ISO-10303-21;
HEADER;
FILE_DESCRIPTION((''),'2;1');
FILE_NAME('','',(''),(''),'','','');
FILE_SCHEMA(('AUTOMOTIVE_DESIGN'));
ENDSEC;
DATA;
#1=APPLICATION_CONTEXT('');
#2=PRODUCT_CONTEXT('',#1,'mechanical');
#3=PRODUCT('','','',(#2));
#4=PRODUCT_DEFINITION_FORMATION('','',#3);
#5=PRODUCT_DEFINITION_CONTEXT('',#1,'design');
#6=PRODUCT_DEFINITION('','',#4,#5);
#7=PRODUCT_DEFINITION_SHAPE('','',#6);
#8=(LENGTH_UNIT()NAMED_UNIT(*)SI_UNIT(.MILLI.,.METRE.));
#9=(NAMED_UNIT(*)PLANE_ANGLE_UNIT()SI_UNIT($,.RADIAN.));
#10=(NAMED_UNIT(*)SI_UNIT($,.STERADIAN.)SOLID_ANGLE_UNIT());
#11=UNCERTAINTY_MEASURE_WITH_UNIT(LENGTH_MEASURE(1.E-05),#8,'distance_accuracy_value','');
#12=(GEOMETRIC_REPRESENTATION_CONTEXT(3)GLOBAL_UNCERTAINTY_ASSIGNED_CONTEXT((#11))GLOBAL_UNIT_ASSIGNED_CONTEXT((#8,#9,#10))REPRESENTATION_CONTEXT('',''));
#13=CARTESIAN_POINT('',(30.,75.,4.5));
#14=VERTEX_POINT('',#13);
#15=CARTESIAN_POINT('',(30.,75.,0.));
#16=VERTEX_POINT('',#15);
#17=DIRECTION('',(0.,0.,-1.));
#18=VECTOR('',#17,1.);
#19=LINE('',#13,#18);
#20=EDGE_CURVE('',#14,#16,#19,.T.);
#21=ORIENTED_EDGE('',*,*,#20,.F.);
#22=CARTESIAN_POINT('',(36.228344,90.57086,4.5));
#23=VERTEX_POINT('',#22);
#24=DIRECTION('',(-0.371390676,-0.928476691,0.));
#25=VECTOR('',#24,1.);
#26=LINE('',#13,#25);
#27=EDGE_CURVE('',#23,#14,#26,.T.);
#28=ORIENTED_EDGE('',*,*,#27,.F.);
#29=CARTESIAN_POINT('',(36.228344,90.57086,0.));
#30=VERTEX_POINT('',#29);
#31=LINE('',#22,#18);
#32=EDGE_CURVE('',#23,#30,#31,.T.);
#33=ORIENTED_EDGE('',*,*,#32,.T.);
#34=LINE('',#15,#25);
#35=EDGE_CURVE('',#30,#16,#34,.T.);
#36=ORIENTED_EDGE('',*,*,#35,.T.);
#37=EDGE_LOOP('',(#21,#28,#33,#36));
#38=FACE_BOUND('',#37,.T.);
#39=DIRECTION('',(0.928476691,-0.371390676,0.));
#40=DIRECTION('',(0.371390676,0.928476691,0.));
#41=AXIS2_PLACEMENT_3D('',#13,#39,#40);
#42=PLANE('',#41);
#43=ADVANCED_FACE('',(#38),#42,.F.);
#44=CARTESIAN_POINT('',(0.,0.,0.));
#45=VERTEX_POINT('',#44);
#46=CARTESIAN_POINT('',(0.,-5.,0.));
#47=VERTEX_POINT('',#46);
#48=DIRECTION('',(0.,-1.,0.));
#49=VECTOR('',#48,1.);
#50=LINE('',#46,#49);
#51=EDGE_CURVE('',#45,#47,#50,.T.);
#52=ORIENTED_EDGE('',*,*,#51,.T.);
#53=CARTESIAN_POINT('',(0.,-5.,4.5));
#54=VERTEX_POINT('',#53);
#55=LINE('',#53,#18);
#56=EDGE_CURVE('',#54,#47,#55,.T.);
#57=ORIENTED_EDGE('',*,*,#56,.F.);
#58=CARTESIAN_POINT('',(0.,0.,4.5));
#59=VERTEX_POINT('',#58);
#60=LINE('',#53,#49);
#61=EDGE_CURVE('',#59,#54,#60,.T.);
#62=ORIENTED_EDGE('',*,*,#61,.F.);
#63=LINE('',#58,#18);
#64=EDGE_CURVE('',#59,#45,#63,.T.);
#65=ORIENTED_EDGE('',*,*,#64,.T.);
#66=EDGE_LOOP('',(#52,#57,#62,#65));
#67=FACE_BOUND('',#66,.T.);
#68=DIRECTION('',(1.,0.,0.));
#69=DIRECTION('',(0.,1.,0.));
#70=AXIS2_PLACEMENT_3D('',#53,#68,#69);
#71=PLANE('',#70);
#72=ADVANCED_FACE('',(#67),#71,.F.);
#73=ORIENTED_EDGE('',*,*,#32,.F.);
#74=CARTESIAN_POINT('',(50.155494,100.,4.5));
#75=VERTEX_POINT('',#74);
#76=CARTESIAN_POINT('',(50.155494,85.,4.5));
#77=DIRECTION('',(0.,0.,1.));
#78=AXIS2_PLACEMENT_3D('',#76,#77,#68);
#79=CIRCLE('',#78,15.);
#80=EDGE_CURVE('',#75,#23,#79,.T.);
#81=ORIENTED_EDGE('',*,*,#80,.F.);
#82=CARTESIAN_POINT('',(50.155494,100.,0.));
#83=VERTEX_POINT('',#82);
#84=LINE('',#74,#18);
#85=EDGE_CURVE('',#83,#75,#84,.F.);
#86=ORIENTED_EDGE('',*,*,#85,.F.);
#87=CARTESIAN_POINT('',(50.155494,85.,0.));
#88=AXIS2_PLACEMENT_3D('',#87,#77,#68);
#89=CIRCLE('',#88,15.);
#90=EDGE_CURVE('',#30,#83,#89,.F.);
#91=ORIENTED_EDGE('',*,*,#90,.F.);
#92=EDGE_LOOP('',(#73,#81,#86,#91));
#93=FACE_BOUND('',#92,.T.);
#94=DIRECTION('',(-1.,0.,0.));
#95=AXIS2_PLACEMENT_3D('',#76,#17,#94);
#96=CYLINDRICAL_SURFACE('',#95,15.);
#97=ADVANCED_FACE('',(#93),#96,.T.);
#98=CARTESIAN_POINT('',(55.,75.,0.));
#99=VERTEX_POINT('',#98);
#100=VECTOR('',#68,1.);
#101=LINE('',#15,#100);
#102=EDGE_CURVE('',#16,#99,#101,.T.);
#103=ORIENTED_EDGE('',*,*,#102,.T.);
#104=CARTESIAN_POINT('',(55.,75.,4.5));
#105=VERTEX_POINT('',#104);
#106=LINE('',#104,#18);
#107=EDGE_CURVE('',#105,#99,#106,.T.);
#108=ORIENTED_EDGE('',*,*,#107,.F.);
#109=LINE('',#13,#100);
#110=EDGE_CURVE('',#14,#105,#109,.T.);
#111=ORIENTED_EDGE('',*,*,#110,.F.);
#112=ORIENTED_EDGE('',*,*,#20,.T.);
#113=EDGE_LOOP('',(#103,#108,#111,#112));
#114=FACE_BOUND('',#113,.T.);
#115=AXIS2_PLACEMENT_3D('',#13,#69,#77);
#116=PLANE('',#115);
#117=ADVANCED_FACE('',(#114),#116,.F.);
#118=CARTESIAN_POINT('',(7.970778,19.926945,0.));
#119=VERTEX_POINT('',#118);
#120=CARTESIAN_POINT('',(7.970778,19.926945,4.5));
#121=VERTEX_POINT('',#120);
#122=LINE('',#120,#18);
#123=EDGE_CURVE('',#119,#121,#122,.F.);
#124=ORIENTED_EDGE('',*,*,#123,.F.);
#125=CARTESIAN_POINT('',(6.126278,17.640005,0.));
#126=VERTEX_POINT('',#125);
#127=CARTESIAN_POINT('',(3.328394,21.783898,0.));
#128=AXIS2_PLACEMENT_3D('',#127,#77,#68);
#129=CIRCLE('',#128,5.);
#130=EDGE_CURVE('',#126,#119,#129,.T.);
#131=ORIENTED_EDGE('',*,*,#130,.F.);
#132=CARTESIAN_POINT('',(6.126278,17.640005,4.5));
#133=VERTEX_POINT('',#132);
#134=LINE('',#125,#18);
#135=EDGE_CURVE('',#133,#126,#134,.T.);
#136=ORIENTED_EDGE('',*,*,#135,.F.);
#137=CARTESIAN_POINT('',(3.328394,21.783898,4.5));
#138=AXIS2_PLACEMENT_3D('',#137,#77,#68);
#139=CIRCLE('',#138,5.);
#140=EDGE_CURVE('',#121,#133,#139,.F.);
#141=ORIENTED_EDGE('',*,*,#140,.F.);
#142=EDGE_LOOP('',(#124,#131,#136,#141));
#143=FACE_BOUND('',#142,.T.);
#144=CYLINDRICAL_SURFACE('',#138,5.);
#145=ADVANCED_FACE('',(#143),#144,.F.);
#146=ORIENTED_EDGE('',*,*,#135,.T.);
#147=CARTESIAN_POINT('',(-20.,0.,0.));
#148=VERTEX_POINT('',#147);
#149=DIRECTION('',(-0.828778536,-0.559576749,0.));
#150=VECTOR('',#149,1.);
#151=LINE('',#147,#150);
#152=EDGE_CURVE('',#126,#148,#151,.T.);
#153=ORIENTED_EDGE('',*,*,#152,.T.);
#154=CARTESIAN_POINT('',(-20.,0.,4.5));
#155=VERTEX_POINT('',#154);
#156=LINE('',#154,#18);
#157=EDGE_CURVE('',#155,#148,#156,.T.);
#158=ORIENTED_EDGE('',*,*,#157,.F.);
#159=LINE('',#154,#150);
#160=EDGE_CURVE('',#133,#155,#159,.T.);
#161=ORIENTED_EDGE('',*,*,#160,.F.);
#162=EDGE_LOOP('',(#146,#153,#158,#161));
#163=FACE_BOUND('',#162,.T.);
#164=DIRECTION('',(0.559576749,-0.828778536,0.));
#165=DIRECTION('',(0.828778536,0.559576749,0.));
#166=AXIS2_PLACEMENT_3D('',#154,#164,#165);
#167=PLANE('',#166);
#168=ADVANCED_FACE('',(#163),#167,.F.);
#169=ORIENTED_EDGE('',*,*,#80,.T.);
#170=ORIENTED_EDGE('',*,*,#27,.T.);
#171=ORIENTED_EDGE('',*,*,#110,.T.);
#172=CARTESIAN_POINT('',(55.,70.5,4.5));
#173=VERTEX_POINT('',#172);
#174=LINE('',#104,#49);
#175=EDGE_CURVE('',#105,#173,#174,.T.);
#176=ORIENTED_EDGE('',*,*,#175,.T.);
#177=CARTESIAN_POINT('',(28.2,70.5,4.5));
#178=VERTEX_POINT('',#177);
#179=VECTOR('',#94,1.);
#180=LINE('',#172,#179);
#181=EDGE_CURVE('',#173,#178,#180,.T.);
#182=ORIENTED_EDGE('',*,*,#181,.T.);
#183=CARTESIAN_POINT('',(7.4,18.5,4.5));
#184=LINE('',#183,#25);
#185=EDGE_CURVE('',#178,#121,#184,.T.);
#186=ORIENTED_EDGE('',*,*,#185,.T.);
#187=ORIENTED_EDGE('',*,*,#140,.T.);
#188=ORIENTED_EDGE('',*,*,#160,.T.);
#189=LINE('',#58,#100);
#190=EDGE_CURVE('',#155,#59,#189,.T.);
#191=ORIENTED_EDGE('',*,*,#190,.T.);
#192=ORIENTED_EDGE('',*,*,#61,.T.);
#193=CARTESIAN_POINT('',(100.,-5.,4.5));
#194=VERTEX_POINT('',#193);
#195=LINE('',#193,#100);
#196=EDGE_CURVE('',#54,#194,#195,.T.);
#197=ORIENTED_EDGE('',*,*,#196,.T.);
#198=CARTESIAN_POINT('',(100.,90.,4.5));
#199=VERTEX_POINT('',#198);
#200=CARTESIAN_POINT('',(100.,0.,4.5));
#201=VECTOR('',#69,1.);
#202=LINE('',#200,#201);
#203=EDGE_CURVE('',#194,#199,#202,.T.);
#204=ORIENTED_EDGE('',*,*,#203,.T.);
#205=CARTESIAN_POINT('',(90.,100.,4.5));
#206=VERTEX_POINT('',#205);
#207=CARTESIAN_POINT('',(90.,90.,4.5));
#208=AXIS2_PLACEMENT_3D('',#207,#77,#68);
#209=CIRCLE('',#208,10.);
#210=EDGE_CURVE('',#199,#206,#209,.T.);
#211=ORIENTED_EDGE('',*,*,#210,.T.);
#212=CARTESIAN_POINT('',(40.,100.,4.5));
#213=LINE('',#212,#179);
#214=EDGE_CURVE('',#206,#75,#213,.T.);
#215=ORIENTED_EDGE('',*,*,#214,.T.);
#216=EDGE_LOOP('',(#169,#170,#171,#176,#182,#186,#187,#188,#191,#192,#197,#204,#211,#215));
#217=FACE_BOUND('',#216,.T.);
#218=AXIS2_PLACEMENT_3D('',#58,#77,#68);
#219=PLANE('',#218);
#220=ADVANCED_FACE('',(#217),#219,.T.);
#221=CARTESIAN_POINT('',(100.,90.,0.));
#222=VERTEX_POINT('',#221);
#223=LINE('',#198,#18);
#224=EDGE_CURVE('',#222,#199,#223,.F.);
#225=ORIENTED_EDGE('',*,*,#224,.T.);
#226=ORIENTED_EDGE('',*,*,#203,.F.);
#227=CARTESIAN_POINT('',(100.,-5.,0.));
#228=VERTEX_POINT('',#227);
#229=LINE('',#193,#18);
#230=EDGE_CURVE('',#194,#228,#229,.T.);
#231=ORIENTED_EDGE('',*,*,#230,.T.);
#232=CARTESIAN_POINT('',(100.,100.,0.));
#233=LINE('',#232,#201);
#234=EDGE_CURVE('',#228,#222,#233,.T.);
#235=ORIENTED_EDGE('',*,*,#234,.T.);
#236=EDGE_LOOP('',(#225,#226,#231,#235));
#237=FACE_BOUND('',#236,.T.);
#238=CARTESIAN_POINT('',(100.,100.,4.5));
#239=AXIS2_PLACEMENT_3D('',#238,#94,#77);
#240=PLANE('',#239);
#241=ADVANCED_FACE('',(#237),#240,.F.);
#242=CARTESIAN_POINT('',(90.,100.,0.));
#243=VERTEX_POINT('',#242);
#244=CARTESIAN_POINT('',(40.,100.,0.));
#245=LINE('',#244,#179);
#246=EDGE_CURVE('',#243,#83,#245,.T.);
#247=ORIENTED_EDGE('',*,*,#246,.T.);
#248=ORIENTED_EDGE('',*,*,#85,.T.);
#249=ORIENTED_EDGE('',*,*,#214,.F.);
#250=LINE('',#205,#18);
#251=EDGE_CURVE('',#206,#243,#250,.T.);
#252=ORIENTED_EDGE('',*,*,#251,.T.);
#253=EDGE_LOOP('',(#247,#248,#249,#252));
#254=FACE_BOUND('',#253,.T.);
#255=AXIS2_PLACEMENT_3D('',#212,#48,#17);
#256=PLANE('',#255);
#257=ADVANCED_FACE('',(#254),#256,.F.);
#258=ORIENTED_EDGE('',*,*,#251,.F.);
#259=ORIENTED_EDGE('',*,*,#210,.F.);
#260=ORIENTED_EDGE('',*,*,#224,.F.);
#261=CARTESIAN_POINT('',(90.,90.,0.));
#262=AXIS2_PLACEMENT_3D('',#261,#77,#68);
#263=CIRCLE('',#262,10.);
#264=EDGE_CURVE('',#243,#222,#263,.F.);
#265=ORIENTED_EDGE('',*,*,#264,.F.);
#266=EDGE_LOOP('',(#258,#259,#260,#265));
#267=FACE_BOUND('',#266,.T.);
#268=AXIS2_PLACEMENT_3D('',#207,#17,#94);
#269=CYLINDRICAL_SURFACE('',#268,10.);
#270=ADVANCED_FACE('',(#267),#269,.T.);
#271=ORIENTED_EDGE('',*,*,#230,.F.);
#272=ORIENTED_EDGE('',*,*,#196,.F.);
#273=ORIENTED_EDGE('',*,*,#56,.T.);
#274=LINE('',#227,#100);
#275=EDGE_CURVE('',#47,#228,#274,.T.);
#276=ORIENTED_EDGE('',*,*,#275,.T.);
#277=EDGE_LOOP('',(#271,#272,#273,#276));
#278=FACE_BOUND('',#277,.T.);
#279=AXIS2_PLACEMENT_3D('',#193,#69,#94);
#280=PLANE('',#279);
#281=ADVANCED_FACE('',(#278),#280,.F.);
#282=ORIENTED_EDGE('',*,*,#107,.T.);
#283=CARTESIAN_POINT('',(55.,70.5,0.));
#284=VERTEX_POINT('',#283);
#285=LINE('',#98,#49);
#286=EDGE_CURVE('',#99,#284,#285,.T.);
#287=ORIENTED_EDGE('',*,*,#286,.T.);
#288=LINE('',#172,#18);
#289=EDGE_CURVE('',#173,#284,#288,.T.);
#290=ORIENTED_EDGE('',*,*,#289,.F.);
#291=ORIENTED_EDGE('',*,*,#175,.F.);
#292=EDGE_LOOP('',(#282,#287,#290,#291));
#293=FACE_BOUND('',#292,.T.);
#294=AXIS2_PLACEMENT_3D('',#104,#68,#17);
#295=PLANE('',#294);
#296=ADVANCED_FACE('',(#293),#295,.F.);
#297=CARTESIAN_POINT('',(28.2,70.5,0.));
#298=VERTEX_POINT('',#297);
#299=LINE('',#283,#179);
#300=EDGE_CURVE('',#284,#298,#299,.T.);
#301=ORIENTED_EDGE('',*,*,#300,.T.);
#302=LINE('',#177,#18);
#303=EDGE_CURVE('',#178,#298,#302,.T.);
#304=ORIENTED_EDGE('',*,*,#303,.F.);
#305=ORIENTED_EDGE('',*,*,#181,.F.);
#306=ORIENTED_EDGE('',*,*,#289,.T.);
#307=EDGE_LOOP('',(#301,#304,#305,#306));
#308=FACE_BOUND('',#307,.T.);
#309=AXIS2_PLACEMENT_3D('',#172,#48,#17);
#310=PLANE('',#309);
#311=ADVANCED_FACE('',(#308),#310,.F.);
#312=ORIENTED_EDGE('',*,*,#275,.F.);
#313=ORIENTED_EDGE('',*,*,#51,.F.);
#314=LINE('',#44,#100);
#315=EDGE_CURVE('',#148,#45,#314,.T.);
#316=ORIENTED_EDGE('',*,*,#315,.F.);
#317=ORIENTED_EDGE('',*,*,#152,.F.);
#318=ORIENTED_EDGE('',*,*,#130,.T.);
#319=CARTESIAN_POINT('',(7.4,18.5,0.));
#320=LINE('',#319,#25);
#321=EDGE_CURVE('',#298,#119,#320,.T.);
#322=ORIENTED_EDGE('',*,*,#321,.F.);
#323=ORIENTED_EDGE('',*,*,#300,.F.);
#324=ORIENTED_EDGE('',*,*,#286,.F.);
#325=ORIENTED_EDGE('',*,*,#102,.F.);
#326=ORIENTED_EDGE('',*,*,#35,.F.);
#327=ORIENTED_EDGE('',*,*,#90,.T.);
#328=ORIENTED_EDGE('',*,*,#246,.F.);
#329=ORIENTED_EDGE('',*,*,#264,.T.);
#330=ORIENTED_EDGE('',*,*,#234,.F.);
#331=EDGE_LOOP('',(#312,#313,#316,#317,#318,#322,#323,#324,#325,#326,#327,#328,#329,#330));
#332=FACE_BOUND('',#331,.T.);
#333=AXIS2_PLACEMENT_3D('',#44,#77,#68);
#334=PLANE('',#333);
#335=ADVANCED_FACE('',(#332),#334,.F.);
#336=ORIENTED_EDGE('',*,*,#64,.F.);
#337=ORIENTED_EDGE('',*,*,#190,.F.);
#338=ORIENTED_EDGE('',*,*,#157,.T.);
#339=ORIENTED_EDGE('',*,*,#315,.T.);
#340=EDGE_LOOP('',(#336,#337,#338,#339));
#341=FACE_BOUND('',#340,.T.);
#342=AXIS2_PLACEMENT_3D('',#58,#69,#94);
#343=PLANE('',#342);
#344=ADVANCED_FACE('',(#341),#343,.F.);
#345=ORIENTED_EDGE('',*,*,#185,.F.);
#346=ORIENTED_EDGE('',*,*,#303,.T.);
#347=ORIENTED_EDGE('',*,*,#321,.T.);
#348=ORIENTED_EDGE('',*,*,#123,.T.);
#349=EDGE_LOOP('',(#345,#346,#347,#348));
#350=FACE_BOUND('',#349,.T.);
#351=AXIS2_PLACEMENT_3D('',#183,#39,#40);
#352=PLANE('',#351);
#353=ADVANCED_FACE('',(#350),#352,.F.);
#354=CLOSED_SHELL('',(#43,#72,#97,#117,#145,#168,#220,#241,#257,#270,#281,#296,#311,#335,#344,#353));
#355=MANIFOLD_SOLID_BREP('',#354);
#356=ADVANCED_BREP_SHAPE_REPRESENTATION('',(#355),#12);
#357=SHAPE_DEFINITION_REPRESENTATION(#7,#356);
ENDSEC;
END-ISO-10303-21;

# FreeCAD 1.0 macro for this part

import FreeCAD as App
import Part
import Sketcher
from FreeCAD import Vector
Q = App.Units.Quantity


def edges_at(feature, points):
    """Names of the edges that pass closest to the given points."""
    edges = feature.Shape.Edges
    near = lambda p: min(range(len(edges)), key=lambda i: edges[i].distToShape(Part.Vertex(*p))[0])
    return sorted({f"Edge{near(p) + 1}" for p in points})


def add_polygon(sketch, points):
    """Adds a closed chain of lines whose ends are joined by coincident constraints."""
    first, n = sketch.GeometryCount, len(points)
    for a, b in zip(points, points[1:] + points[:1]):
        sketch.addGeometry(Part.LineSegment(App.Vector(*a, 0), App.Vector(*b, 0)), False)
    for i in range(n):
        sketch.addConstraint(Sketcher.Constraint("Coincident", first + i, 2, first + (i + 1) % n, 1))

doc = App.newDocument("Part")
params = doc.addObject("Spreadsheet::Sheet", "Params")
for row, (alias, value) in enumerate([
    ("sketch1_width", "20 mm"),
    ("sketch1_width2", "100 mm"),
    ("sketch1_width3", "60 mm"),
    ("sketch1_width4", "25 mm"),
    ("sketch1_height", "5 mm"),
    ("pad1_length", "4.5 mm"),
    ("fillet_radius", "5 mm"),
    ("fillet2_radius", "10 mm"),
    ("fillet3_radius", "15 mm"),
], start=1):
    params.set(f"A{row}", alias)
    params.set(f"B{row}", "=" + value)
    params.setAlias(f"B{row}", alias)

body = doc.addObject("PartDesign::Body", "Body")

sketch1 = doc.addObject("Sketcher::SketchObject", "Sketch")
body.addObject(sketch1)
sketch1.AttachmentSupport = (doc.XY_Plane, [""])
sketch1.MapMode = "FlatFace"
add_polygon(sketch1, [(28.2, 70.5), (7.4, 18.5), (-20, 0), (0, 0), (0, -5), (100, -5), (100, 100), (40, 100), (30, 75), (55, 75), (55, 70.5)])
sketch1.addConstraint(Sketcher.Constraint("Horizontal", 2))
sketch1.addConstraint(Sketcher.Constraint("Vertical", 3))
sketch1.addConstraint(Sketcher.Constraint("Horizontal", 4))
sketch1.addConstraint(Sketcher.Constraint("Vertical", 5))
sketch1.addConstraint(Sketcher.Constraint("Horizontal", 6))
sketch1.addConstraint(Sketcher.Constraint("Horizontal", 8))
sketch1.addConstraint(Sketcher.Constraint("Vertical", 9))
sketch1.addConstraint(Sketcher.Constraint("Horizontal", 10))
sketch1.addConstraint(Sketcher.Constraint("Coincident", 2, 2, -1, 1))
sketch1.addConstraint(Sketcher.Constraint("Parallel", 0, 7))
sketch1.addConstraint(Sketcher.Constraint("DistanceX", 2, 1, 2, 2, Q("20 mm")))
sketch1.addConstraint(Sketcher.Constraint("DistanceX", 4, 1, 4, 2, Q("100 mm")))
sketch1.addConstraint(Sketcher.Constraint("DistanceX", 6, 2, 6, 1, Q("60 mm")))
sketch1.addConstraint(Sketcher.Constraint("DistanceX", 8, 1, 8, 2, Q("25 mm")))
sketch1.addConstraint(Sketcher.Constraint("DistanceY", 3, 2, 3, 1, Q("5 mm")))
sketch1.addConstraint(Sketcher.Constraint("DistanceY", 5, 1, 5, 2, Q("105 mm")))
sketch1.addConstraint(Sketcher.Constraint("DistanceX", 10, 2, 10, 1, Q("26.8 mm")))
sketch1.addConstraint(Sketcher.Constraint("DistanceY", 9, 2, 9, 1, Q("4.5 mm")))
sketch1.addConstraint(Sketcher.Constraint("DistanceX", -1, 1, 7, 2, Q("30 mm")))
sketch1.addConstraint(Sketcher.Constraint("DistanceY", -1, 1, 7, 2, Q("75 mm")))
sketch1.addConstraint(Sketcher.Constraint("DistanceY", 0, 2, 9, 2, Q("52 mm")))
sketch1.setExpression("Constraints[21]", "Params.sketch1_width")
sketch1.setExpression("Constraints[22]", "Params.sketch1_width2")
sketch1.setExpression("Constraints[23]", "Params.sketch1_width3")
sketch1.setExpression("Constraints[24]", "Params.sketch1_width4")
sketch1.setExpression("Constraints[25]", "Params.sketch1_height")
pad1 = doc.addObject("PartDesign::Pad", "Pad")
body.addObject(pad1)
pad1.Profile = sketch1
pad1.setExpression("Length", "Params.pad1_length")
doc.recompute()

fillet = doc.addObject("PartDesign::Fillet", "Fillet")
body.addObject(fillet)
fillet.Base = (pad1, edges_at(pad1, [(7.4, 18.5, 2.25)]))
fillet.setExpression("Radius", "Params.fillet_radius")
doc.recompute()

fillet2 = doc.addObject("PartDesign::Fillet", "Fillet001")
body.addObject(fillet2)
fillet2.Base = (fillet, edges_at(fillet, [(100, 100, 2.25)]))
fillet2.setExpression("Radius", "Params.fillet2_radius")
doc.recompute()

fillet3 = doc.addObject("PartDesign::Fillet", "Fillet002")
body.addObject(fillet3)
fillet3.Base = (fillet2, edges_at(fillet2, [(40, 100, 2.25)]))
fillet3.setExpression("Radius", "Params.fillet3_radius")

doc.recompute()
